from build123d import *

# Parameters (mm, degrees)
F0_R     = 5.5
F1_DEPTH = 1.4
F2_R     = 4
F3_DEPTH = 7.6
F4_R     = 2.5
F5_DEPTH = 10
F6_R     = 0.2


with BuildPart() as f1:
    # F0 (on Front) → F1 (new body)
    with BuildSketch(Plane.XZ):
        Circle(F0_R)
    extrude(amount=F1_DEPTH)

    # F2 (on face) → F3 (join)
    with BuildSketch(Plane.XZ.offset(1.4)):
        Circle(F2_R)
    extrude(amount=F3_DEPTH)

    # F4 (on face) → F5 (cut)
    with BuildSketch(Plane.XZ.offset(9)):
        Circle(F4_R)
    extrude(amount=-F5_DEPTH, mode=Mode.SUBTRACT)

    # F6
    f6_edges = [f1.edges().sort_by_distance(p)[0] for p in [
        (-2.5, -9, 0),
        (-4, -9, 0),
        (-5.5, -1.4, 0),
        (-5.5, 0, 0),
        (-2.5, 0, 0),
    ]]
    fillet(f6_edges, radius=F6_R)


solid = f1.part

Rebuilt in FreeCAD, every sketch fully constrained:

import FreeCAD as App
import Part
import Sketcher


def edges_at(feature, points):
    """Names of the edges that pass closest to the given points."""
    edges = feature.Shape.Edges
    near = lambda p: min(range(len(edges)), key=lambda i: edges[i].distToShape(Part.Vertex(*p))[0])
    return sorted({f"Edge{near(p) + 1}" for p in points})

doc = App.newDocument("Part")
body = doc.addObject("PartDesign::Body", "Body")

sketch1 = body.newObject("Sketcher::SketchObject", "Sketch")
sketch1.AttachmentSupport = (doc.getObject("XZ_Plane"), [""])
sketch1.MapMode = "FlatFace"
sketch1.addGeometry(Part.Circle(App.Vector(0, 0, 0), App.Vector(0, 0, 1), 6), False)
sketch1.addConstraint([
    Sketcher.Constraint("Coincident", 0, 3, -1, 1),
    Sketcher.Constraint("Diameter", 0, 11.0),
])
pad1 = body.newObject("PartDesign::Pad", "Pad")
pad1.Profile = sketch1
pad1.Length = 1.4

sketch2 = body.newObject("Sketcher::SketchObject", "Sketch001")
sketch2.AttachmentSupport = (doc.getObject("XZ_Plane"), [""])
sketch2.MapMode = "FlatFace"
sketch2.AttachmentOffset = App.Placement(App.Vector(0, 0, 1.4), App.Rotation())
sketch2.addGeometry(Part.Circle(App.Vector(0, 0, 0), App.Vector(0, 0, 1), 4), False)
sketch2.addConstraint([
    Sketcher.Constraint("Coincident", 0, 3, -1, 1),
    Sketcher.Constraint("Diameter", 0, 8.0),
])
pad2 = body.newObject("PartDesign::Pad", "Pad001")
pad2.Profile = sketch2
pad2.Length = 7.6

sketch3 = body.newObject("Sketcher::SketchObject", "Sketch002")
sketch3.AttachmentSupport = (doc.getObject("XZ_Plane"), [""])
sketch3.MapMode = "FlatFace"
sketch3.AttachmentOffset = App.Placement(App.Vector(0, 0, 9), App.Rotation())
sketch3.addGeometry(Part.Circle(App.Vector(0, 0, 0), App.Vector(0, 0, 1), 2.5), False)
sketch3.addConstraint([
    Sketcher.Constraint("Coincident", 0, 3, -1, 1),
    Sketcher.Constraint("Diameter", 0, 5.0),
])
pocket1 = body.newObject("PartDesign::Pocket", "Pocket")
pocket1.Profile = sketch3
pocket1.Length = 10
doc.recompute()

fillet = body.newObject("PartDesign::Fillet", "Fillet")
fillet.Base = (pocket1, edges_at(pocket1, [
    (-2.5, -9, 0),
    (-4, -9, 0),
    (-5.5, -1.4, 0),
    (-5.5, 0, 0),
    (-2.5, 0, 0),
]))
fillet.Radius = 0.2

doc.recompute()
